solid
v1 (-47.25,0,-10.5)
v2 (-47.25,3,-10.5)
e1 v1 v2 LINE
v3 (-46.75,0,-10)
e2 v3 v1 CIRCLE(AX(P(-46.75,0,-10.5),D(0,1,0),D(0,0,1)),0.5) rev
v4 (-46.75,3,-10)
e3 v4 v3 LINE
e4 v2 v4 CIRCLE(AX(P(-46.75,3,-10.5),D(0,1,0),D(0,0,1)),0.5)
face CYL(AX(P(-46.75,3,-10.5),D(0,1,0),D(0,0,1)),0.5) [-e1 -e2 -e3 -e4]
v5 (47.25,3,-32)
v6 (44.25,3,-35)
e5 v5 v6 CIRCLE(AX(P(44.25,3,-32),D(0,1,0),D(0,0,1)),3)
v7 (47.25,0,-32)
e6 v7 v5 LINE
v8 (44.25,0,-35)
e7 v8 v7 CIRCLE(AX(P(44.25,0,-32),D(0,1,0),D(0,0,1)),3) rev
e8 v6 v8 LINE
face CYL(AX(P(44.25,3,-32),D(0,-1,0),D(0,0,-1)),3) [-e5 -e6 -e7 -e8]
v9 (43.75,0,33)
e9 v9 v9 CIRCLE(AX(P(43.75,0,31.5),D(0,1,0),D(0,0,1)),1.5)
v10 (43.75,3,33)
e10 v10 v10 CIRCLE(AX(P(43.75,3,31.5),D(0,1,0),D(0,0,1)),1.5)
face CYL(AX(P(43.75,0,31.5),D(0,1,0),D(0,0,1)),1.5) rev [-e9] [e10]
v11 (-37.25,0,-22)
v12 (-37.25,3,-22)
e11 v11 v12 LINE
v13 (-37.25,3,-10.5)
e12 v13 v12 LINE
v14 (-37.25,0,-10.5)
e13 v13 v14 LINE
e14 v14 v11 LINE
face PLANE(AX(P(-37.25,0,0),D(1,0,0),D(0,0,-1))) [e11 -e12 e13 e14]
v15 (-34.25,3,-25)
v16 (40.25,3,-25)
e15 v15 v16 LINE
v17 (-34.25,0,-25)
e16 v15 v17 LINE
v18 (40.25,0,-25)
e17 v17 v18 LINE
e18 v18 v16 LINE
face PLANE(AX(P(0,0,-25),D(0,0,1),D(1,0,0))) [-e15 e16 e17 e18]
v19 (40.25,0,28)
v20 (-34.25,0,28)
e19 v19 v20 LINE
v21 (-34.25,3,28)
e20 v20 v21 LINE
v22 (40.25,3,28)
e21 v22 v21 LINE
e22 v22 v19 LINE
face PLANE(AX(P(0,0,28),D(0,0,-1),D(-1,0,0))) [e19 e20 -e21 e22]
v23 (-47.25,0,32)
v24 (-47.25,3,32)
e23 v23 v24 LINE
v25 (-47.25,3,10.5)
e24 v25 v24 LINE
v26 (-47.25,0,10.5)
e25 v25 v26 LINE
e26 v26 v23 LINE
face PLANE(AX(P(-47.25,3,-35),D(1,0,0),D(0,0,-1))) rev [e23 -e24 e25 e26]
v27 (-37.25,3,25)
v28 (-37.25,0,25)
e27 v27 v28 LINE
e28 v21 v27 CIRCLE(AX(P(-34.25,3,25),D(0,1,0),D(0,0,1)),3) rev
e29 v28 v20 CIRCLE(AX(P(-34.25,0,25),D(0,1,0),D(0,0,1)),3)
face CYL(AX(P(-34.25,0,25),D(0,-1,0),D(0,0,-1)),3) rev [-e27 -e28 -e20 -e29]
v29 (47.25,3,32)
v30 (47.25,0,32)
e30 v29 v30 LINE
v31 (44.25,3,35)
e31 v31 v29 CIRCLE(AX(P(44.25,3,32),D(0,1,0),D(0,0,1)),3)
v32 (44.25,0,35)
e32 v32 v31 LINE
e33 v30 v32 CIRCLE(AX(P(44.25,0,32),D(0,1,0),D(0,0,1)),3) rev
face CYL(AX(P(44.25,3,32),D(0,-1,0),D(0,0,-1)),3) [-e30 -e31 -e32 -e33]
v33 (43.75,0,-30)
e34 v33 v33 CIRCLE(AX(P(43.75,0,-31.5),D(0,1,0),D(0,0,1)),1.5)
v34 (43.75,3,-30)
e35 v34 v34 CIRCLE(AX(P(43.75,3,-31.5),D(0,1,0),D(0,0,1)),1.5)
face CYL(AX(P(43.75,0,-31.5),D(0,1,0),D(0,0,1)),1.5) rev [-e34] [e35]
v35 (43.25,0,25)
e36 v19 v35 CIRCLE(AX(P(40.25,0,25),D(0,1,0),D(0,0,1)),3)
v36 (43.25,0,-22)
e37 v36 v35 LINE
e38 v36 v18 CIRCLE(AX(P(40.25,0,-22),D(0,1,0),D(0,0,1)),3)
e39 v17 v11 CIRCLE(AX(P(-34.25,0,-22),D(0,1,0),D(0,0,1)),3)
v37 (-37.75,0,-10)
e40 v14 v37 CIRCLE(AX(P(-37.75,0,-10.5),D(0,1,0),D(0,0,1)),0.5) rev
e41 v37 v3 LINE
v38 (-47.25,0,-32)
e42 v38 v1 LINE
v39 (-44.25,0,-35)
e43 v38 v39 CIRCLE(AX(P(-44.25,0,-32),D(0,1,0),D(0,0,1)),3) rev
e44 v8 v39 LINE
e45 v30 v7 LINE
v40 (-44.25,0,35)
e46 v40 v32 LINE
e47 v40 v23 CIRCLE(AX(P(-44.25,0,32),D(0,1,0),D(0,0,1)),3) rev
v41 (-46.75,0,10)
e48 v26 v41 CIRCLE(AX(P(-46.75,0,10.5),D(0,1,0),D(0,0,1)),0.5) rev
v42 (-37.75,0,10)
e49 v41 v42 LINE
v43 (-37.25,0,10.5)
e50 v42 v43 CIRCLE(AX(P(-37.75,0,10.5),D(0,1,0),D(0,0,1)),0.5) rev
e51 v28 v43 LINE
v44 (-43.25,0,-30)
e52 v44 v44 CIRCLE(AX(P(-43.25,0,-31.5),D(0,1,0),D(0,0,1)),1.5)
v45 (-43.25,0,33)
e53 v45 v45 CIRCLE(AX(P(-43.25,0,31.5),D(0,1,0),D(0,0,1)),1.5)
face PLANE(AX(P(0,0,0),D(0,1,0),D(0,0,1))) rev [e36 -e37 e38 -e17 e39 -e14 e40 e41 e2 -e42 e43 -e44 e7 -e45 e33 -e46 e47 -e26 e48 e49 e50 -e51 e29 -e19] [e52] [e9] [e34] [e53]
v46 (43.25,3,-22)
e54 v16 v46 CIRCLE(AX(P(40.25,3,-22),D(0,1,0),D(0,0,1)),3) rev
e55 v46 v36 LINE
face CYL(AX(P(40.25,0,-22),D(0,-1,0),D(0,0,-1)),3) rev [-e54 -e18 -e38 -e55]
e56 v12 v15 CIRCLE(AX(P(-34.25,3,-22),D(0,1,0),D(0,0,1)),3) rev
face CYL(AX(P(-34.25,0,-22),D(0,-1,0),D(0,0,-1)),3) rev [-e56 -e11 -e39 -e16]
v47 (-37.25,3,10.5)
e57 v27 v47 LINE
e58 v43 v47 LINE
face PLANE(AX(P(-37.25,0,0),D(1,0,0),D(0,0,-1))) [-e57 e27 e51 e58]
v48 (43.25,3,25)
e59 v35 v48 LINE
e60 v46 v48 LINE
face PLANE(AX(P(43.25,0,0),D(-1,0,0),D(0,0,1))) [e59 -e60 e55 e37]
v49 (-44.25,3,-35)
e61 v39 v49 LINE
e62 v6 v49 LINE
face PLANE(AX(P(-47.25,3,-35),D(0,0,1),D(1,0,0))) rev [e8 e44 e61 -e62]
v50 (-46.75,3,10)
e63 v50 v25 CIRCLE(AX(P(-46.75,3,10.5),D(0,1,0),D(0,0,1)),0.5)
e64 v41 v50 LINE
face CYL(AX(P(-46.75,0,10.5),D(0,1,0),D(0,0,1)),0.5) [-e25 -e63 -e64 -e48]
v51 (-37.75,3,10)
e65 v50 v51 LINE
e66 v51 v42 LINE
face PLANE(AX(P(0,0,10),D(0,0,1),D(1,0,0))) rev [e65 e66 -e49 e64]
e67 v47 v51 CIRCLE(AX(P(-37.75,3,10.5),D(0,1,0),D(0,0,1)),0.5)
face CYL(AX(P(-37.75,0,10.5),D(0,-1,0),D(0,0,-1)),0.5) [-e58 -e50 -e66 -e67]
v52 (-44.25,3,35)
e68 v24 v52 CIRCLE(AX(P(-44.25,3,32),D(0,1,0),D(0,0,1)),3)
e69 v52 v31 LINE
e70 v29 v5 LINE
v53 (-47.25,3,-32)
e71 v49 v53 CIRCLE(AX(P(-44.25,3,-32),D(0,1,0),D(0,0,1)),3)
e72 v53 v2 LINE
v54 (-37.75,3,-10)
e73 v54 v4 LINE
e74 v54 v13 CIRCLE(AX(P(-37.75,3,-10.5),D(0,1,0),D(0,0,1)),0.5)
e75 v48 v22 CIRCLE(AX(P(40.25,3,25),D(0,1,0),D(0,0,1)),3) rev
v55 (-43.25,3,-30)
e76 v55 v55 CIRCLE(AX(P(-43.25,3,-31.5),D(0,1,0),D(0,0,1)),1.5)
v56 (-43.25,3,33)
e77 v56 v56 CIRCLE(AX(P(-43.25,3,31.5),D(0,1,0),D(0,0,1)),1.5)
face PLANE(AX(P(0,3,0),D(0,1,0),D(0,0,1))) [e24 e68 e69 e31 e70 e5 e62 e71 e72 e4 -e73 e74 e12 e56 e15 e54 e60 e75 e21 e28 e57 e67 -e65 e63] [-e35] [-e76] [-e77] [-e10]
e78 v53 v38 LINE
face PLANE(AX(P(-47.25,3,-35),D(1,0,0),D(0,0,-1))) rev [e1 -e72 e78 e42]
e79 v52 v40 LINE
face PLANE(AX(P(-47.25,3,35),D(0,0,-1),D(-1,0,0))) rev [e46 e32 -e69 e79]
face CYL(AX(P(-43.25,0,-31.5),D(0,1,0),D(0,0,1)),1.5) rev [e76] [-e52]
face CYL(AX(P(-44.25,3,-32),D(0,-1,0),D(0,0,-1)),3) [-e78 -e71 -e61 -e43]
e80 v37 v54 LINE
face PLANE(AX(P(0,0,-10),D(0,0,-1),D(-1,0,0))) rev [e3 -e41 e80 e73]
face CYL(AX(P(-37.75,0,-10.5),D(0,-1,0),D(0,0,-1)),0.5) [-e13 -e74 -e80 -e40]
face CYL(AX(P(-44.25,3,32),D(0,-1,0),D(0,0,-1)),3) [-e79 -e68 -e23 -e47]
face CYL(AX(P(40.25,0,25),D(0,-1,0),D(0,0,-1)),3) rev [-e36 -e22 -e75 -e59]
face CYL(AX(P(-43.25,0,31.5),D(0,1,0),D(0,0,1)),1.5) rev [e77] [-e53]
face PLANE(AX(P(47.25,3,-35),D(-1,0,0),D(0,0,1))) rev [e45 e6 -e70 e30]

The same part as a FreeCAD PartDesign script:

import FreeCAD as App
import Part
import Sketcher
from FreeCAD import Vector
Q = App.Units.Quantity


def edges_at(feature, points):
    """Names of the edges that pass closest to the given points."""
    edges = feature.Shape.Edges
    near = lambda p: min(range(len(edges)), key=lambda i: edges[i].distToShape(Part.Vertex(*p))[0])
    return sorted({f"Edge{near(p) + 1}" for p in points})

doc = App.newDocument("Part")
body = doc.addObject("PartDesign::Body", "Body")

# Sketch on XZ plane
sketch1 = body.newObject("Sketcher::SketchObject", "Sketch")
sketch1.AttachmentSupport = (doc.getObject("XZ_Plane"), [""])
sketch1.MapMode = "FlatFace"
sketch1.addGeometry(Part.LineSegment(Vector(-47, -35, 0), Vector(-47, 35, 0)), False)
sketch1.addGeometry(Part.LineSegment(Vector(-47, 35, 0), Vector(47, 35, 0)), False)
sketch1.addGeometry(Part.LineSegment(Vector(47, 35, 0), Vector(47, -35, 0)), False)
sketch1.addGeometry(Part.LineSegment(Vector(47, -35, 0), Vector(-47, -35, 0)), False)
sketch1.addConstraint(Sketcher.Constraint("Coincident", 0, 2, 1, 1))
sketch1.addConstraint(Sketcher.Constraint("Coincident", 1, 2, 2, 1))
sketch1.addConstraint(Sketcher.Constraint("Coincident", 2, 2, 3, 1))
sketch1.addConstraint(Sketcher.Constraint("Coincident", 3, 2, 0, 1))
sketch1.addConstraint(Sketcher.Constraint("Vertical", 0))
sketch1.addConstraint(Sketcher.Constraint("Horizontal", 1))
sketch1.addConstraint(Sketcher.Constraint("Vertical", 2))
sketch1.addConstraint(Sketcher.Constraint("Horizontal", 3))
sketch1.addConstraint(Sketcher.Constraint("Symmetric", 0, 2, 2, 2, -1, 1))
sketch1.addConstraint(Sketcher.Constraint("DistanceY", 0, 1, 0, 2, Q("70 mm")))
sketch1.addConstraint(Sketcher.Constraint("DistanceX", 1, 1, 1, 2, Q("94.5 mm")))
pad1 = body.newObject("PartDesign::Pad", "Pad")
pad1.Profile = sketch1
pad1.Length = 3
pad1.Reversed = True

# Sketch on XZ plane
sketch2 = body.newObject("Sketcher::SketchObject", "Sketch001")
sketch2.AttachmentSupport = (doc.getObject("XZ_Plane"), [""])
sketch2.MapMode = "FlatFace"
sketch2.AttachmentOffset = App.Placement(Vector(0, 0, -3), App.Rotation())
sketch2.addGeometry(Part.Circle(Vector(43.8, -31.5, 0), Vector(0, 0, 1), 1.5), False)
sketch2.addGeometry(Part.Circle(Vector(-43.2, -31.5, 0), Vector(0, 0, 1), 1.5), False)
sketch2.addGeometry(Part.Circle(Vector(-43.2, 31.5, 0), Vector(0, 0, 1), 1.5), False)
sketch2.addGeometry(Part.Circle(Vector(43.8, 31.5, 0), Vector(0, 0, 1), 1.5), False)
sketch2.addConstraint(Sketcher.Constraint("Equal", 0, 1))
sketch2.addConstraint(Sketcher.Constraint("Equal", 1, 2))
sketch2.addConstraint(Sketcher.Constraint("Equal", 2, 3))
sketch2.addConstraint(Sketcher.Constraint("Symmetric", 1, 3, 2, 3, -1))
sketch2.addConstraint(Sketcher.Constraint("Symmetric", 0, 3, 3, 3, -1))
sketch2.addConstraint(Sketcher.Constraint("Horizontal", 0, 3, 1, 3))
sketch2.addConstraint(Sketcher.Constraint("Diameter", 0, Q("3 mm")))
sketch2.addConstraint(Sketcher.Constraint("DistanceX", 1, 3, 0, 3, Q("87 mm")))
sketch2.addConstraint(Sketcher.Constraint("DistanceY", 1, 3, 2, 3, Q("63 mm")))
sketch2.addConstraint(Sketcher.Constraint("DistanceX", -1, 1, 0, 3, Q("43.75 mm")))
pocket1 = body.newObject("PartDesign::Pocket", "Pocket")
pocket1.Profile = sketch2
pocket1.Type = "ThroughAll"
pocket1.Reversed = True
doc.recompute()

fillet = body.newObject("PartDesign::Fillet", "Fillet")
fillet.Base = (pocket1, edges_at(pocket1, [
    (47.25, 1.5, 35),
    (-47.25, 1.5, 35),
    (-47.25, 1.5, -35),
    (47.25, 1.5, -35),
]))
fillet.Radius = 3

# Sketch on XZ plane
sketch3 = body.newObject("Sketcher::SketchObject", "Sketch002")
sketch3.AttachmentSupport = (doc.getObject("XZ_Plane"), [""])
sketch3.MapMode = "FlatFace"
sketch3.AttachmentOffset = App.Placement(Vector(0, 0, -3), App.Rotation())
sketch3.addGeometry(Part.LineSegment(Vector(-37, 28, 0), Vector(43, 28, 0)), False)
sketch3.addGeometry(Part.LineSegment(Vector(43, 28, 0), Vector(43, -25, 0)), False)
sketch3.addGeometry(Part.LineSegment(Vector(43, -25, 0), Vector(-37, -25, 0)), False)
sketch3.addGeometry(Part.LineSegment(Vector(-37, -25, 0), Vector(-37, -10, 0)), False)
sketch3.addGeometry(Part.LineSegment(Vector(-37, -10, 0), Vector(-47, -10, 0)), False)
sketch3.addGeometry(Part.LineSegment(Vector(-47, -10, 0), Vector(-47, 10, 0)), False)
sketch3.addGeometry(Part.LineSegment(Vector(-47, 10, 0), Vector(-37, 10, 0)), False)
sketch3.addGeometry(Part.LineSegment(Vector(-37, 10, 0), Vector(-37, 28, 0)), False)
sketch3.addConstraint(Sketcher.Constraint("Coincident", 0, 2, 1, 1))
sketch3.addConstraint(Sketcher.Constraint("Coincident", 1, 2, 2, 1))
sketch3.addConstraint(Sketcher.Constraint("Coincident", 2, 2, 3, 1))
sketch3.addConstraint(Sketcher.Constraint("Coincident", 3, 2, 4, 1))
sketch3.addConstraint(Sketcher.Constraint("Coincident", 4, 2, 5, 1))
sketch3.addConstraint(Sketcher.Constraint("Coincident", 5, 2, 6, 1))
sketch3.addConstraint(Sketcher.Constraint("Coincident", 6, 2, 7, 1))
sketch3.addConstraint(Sketcher.Constraint("Coincident", 7, 2, 0, 1))
sketch3.addConstraint(Sketcher.Constraint("Horizontal", 0))
sketch3.addConstraint(Sketcher.Constraint("Vertical", 1))
sketch3.addConstraint(Sketcher.Constraint("Horizontal", 2))
sketch3.addConstraint(Sketcher.Constraint("Vertical", 3))
sketch3.addConstraint(Sketcher.Constraint("Horizontal", 4))
sketch3.addConstraint(Sketcher.Constraint("Vertical", 5))
sketch3.addConstraint(Sketcher.Constraint("Horizontal", 6))
sketch3.addConstraint(Sketcher.Constraint("Vertical", 7))
sketch3.addConstraint(Sketcher.Constraint("Symmetric", 3, 2, 6, 2, -1))
sketch3.addConstraint(Sketcher.Constraint("DistanceX", 4, 2, 4, 1, Q("10 mm")))
sketch3.addConstraint(Sketcher.Constraint("DistanceY", 1, 2, 1, 1, Q("53 mm")))
sketch3.addConstraint(Sketcher.Constraint("DistanceY", 3, 1, 3, 2, Q("15 mm")))
sketch3.addConstraint(Sketcher.Constraint("DistanceY", 5, 1, 5, 2, Q("20 mm")))
sketch3.addConstraint(Sketcher.Constraint("DistanceX", 0, 1, 0, 2, Q("80.5 mm")))
sketch3.addConstraint(Sketcher.Constraint("DistanceX", -1, 1, 0, 2, Q("43.25 mm")))
pocket2 = body.newObject("PartDesign::Pocket", "Pocket001")
pocket2.Profile = sketch3
pocket2.Type = "ThroughAll"
pocket2.Reversed = True
doc.recompute()

fillet2 = body.newObject("PartDesign::Fillet", "Fillet001")
fillet2.Base = (pocket2, edges_at(pocket2, [
    (43.25, 1.5, 28),
    (-37.25, 1.5, 28),
    (-37.25, 1.5, -25),
    (43.25, 1.5, -25),
]))
fillet2.Radius = 3
doc.recompute()

fillet3 = body.newObject("PartDesign::Fillet", "Fillet002")
fillet3.Base = (fillet2, edges_at(fillet2, [
    (-37.25, 1.5, 10),
    (-47.25, 1.5, 10),
    (-47.25, 1.5, -10),
    (-37.25, 1.5, -10),
]))
fillet3.Radius = 0.5

doc.recompute()
